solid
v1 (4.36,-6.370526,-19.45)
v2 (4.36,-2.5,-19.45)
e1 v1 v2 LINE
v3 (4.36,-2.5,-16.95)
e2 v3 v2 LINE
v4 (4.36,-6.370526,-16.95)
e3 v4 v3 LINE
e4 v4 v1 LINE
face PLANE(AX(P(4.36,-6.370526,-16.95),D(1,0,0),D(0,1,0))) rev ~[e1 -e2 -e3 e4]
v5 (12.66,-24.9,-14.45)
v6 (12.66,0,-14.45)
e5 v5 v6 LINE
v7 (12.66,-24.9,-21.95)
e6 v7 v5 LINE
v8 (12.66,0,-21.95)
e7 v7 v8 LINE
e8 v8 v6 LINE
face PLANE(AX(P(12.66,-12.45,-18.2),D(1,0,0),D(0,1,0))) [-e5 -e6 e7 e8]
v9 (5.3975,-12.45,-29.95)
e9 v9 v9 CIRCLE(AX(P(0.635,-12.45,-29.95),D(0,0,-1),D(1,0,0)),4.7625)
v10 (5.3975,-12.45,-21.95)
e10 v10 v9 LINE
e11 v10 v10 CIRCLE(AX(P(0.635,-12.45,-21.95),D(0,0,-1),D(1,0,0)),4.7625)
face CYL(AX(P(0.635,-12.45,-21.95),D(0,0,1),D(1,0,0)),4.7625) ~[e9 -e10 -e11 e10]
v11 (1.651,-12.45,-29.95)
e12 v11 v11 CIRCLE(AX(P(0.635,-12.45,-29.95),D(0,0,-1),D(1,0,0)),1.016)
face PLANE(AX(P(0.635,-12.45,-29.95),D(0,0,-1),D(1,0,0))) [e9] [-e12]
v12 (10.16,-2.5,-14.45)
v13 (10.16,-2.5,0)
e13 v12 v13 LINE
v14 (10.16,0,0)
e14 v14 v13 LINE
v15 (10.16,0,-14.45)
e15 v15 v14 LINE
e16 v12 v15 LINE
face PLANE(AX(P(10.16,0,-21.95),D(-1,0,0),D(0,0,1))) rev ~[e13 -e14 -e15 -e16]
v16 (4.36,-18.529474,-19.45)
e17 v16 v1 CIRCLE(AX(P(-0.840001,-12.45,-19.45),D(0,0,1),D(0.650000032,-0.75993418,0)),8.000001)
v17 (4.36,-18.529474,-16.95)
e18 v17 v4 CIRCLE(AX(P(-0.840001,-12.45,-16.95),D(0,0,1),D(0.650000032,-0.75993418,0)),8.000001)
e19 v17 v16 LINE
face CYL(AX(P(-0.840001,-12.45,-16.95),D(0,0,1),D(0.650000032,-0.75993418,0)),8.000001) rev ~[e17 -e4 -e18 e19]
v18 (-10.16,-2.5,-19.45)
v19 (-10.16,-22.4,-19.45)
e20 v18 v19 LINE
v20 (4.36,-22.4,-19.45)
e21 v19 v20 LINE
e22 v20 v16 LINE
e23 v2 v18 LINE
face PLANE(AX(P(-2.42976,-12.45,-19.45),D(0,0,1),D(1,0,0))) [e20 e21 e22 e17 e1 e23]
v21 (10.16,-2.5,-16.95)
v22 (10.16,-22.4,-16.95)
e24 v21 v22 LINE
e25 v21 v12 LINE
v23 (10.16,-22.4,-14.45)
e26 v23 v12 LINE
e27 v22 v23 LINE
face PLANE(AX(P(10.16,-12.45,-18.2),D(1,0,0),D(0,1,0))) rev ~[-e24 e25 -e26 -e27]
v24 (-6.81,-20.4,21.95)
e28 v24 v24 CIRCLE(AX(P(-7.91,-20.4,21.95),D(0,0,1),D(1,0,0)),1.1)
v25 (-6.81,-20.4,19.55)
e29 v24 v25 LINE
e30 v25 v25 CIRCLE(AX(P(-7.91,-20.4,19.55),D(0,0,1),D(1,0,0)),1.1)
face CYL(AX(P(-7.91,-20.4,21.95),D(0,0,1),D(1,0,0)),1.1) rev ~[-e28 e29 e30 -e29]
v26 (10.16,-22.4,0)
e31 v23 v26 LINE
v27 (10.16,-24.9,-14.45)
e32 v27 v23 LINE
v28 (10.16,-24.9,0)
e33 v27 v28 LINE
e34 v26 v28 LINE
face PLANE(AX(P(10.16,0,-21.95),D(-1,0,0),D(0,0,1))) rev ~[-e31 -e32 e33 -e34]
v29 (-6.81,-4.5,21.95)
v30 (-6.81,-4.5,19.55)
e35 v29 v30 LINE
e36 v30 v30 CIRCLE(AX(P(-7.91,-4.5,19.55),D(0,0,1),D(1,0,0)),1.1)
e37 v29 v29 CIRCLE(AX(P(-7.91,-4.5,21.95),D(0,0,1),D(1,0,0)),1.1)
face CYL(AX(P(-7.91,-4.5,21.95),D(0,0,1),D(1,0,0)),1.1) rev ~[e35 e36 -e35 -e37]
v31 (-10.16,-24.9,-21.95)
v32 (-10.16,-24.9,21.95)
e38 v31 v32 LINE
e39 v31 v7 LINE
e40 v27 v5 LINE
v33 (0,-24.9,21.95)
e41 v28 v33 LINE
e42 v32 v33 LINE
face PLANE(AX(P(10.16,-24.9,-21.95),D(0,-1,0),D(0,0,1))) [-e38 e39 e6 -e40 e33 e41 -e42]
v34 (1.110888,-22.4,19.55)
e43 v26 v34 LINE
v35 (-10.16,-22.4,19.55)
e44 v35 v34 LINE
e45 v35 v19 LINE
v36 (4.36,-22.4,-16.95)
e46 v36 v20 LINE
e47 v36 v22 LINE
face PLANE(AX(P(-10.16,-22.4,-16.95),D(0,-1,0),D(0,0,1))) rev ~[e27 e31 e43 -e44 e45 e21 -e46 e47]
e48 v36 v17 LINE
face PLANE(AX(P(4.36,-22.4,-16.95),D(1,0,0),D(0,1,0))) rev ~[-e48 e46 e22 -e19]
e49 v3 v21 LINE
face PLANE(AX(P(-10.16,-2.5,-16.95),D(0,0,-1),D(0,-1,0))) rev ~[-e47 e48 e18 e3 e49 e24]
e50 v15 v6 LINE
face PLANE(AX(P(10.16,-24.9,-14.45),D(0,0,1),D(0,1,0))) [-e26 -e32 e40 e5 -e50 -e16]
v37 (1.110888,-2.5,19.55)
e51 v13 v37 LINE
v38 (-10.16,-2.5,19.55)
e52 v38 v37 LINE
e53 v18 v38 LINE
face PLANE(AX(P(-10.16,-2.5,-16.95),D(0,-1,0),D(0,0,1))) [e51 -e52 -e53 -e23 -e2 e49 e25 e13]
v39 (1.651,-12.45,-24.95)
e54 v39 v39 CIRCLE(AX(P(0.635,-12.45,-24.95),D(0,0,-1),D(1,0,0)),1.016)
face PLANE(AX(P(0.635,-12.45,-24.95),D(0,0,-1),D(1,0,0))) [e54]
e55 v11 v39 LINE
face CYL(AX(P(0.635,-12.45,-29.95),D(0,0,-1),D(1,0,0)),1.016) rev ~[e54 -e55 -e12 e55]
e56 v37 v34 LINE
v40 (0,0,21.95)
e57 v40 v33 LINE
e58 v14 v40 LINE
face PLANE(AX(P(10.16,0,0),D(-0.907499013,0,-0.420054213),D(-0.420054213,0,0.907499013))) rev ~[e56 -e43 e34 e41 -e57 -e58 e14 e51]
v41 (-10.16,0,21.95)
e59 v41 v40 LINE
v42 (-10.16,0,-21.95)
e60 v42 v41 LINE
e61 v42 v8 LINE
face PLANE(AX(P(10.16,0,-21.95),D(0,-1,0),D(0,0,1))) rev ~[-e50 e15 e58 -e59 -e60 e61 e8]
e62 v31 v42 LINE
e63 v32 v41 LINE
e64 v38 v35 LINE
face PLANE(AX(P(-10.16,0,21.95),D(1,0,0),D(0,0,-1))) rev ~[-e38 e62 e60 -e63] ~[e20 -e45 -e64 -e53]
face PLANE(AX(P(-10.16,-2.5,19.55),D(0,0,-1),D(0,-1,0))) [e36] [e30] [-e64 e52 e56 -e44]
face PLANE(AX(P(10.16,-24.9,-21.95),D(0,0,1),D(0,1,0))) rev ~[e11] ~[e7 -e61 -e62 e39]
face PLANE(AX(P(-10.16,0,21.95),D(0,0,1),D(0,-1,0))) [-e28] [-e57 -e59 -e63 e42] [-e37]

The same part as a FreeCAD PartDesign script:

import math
import FreeCAD as App
import Part
import Sketcher
from FreeCAD import Vector
Q = App.Units.Quantity


def add_polygon(sketch, points):
    """Adds a closed chain of lines whose ends are joined by coincident constraints."""
    first, n = sketch.GeometryCount, len(points)
    for a, b in zip(points, points[1:] + points[:1]):
        sketch.addGeometry(Part.LineSegment(App.Vector(*a, 0), App.Vector(*b, 0)), False)
    for i in range(n):
        sketch.addConstraint(Sketcher.Constraint("Coincident", first + i, 2, first + (i + 1) % n, 1))

doc = App.newDocument("Part")
body = doc.addObject("PartDesign::Body", "Body")

sketch1 = body.newObject("Sketcher::SketchObject", "Sketch")
sketch1.AttachmentSupport = (doc.getObject("XZ_Plane"), [""])
sketch1.MapMode = "FlatFace"
add_polygon(sketch1, [(10, 0), (0, 22), (-10, 22), (-10, -22), (10, -22)])
sketch1.addConstraint([
    Sketcher.Constraint("Horizontal", 1),
    Sketcher.Constraint("Vertical", 2),
    Sketcher.Constraint("Horizontal", 3),
    Sketcher.Constraint("Vertical", 4),
    Sketcher.Constraint("Symmetric", 1, 2, 3, 2, -1, 1),
    Sketcher.Constraint("PointOnObject", 0, 2, -2),
    Sketcher.Constraint("PointOnObject", 4, 2, -1),
    Sketcher.Constraint("DistanceY", 2, 2, 2, 1, Q("43.9 mm")),
    Sketcher.Constraint("DistanceX", 1, 2, 1, 1, Q("10.16 mm")),
])
pad1 = body.newObject("PartDesign::Pad", "Pad")
pad1.Profile = sketch1
pad1.Length = 24.9

sketch2 = body.newObject("Sketcher::SketchObject", "Sketch001")
sketch2.AttachmentSupport = (doc.getObject("YZ_Plane"), [""])
sketch2.MapMode = "FlatFace"
sketch2.AttachmentOffset = App.Placement(Vector(0, 0, -10.16), App.Rotation())
add_polygon(sketch2, [(-2, 20), (-2, -17), (-22, -17), (-22, 20)])
sketch2.addConstraint([
    Sketcher.Constraint("Vertical", 0),
    Sketcher.Constraint("Horizontal", 1),
    Sketcher.Constraint("Vertical", 2),
    Sketcher.Constraint("Horizontal", 3),
    Sketcher.Constraint("DistanceX", 1, 2, 1, 1, Q("19.9 mm")),
    Sketcher.Constraint("DistanceY", 0, 2, 0, 1, Q("36.5 mm")),
    Sketcher.Constraint("DistanceX", 0, 2, -1, 1, Q("2.5 mm")),
    Sketcher.Constraint("DistanceY", 0, 2, -1, 1, Q("16.95 mm")),
])
pocket1 = body.newObject("PartDesign::Pocket", "Pocket")
pocket1.Profile = sketch2
pocket1.Length = 25.4
pocket1.Reversed = True

sketch3 = body.newObject("Sketcher::SketchObject", "Sketch002")
sketch3.AttachmentSupport = (doc.getObject("YZ_Plane"), [""])
sketch3.MapMode = "FlatFace"
sketch3.AttachmentOffset = App.Placement(Vector(0, 0, -10.16), App.Rotation())
add_polygon(sketch3, [(0, 22), (0, 17), (-25, 17), (-25, 22)])
add_polygon(sketch3, [(0, -14), (0, -22), (-25, -22), (-25, -14)])
sketch3.addConstraint([
    Sketcher.Constraint("Vertical", 0),
    Sketcher.Constraint("Horizontal", 1),
    Sketcher.Constraint("Vertical", 2),
    Sketcher.Constraint("Horizontal", 3),
    Sketcher.Constraint("Vertical", 4),
    Sketcher.Constraint("Horizontal", 5),
    Sketcher.Constraint("Vertical", 6),
    Sketcher.Constraint("Horizontal", 7),
    Sketcher.Constraint("Symmetric", 3, 2, 4, 2, -1, 1),
    Sketcher.Constraint("PointOnObject", 0, 2, -2),
    Sketcher.Constraint("Vertical", 2, 2, 5, 2),
    Sketcher.Constraint("DistanceY", 0, 2, 0, 1, Q("5 mm")),
    Sketcher.Constraint("DistanceX", 1, 2, 1, 1, Q("24.9 mm")),
    Sketcher.Constraint("DistanceY", 4, 2, 4, 1, Q("7.5 mm")),
    Sketcher.Constraint("DistanceY", 4, 2, 0, 2, Q("38.9 mm")),
])
pad2 = body.newObject("PartDesign::Pad", "Pad001")
pad2.Profile = sketch3
pad2.Length = 2.5
pad2.Reversed = True

sketch4 = body.newObject("Sketcher::SketchObject", "Sketch003")
sketch4.AttachmentSupport = (doc.getObject("XY_Plane"), [""])
sketch4.MapMode = "FlatFace"
sketch4.AttachmentOffset = App.Placement(Vector(0, 0, -16.95), App.Rotation())
sketch4.addGeometry([
    Part.LineSegment(Vector(4.4, -6.4, 0), Vector(4.4, -2.5, 0)),
    Part.LineSegment(Vector(4.4, -2.5, 0), Vector(-10.2, -2.5, 0)),
    Part.LineSegment(Vector(-10.2, -2.5, 0), Vector(-10.2, -22.4, 0)),
    Part.LineSegment(Vector(-10.2, -22.4, 0), Vector(4.4, -22.4, 0)),
    Part.LineSegment(Vector(4.4, -22.4, 0), Vector(4.4, -18.5, 0)),
    Part.ArcOfCircle(Part.Circle(Vector(-0.8, -12.4, 0), Vector(0, 0, 1), 8), math.radians(-49), math.radians(49)),
], False)
sketch4.addConstraint([
    Sketcher.Constraint("Coincident", 0, 2, 1, 1),
    Sketcher.Constraint("Coincident", 1, 2, 2, 1),
    Sketcher.Constraint("Coincident", 2, 2, 3, 1),
    Sketcher.Constraint("Coincident", 3, 2, 4, 1),
    Sketcher.Constraint("Coincident", 4, 2, 5, 1),
    Sketcher.Constraint("Coincident", 5, 2, 0, 1),
    Sketcher.Constraint("Vertical", 0),
    Sketcher.Constraint("Horizontal", 1),
    Sketcher.Constraint("Vertical", 2),
    Sketcher.Constraint("Horizontal", 3),
    Sketcher.Constraint("Vertical", 4),
    Sketcher.Constraint("Vertical", 0, 2, 3, 2),
    Sketcher.Constraint("Equal", 0, 4),
    Sketcher.Constraint("Radius", 5, Q("8.000001 mm")),
    Sketcher.Constraint("DistanceY", 2, 2, 2, 1, Q("19.9 mm")),
    Sketcher.Constraint("DistanceX", 1, 2, 1, 1, Q("14.52 mm")),
    Sketcher.Constraint("DistanceY", 0, 2, -1, 1, Q("2.5 mm")),
    Sketcher.Constraint("DistanceX", 5, 3, 0, 2, Q("5.200001 mm")),
    Sketcher.Constraint("DistanceX", 5, 3, -1, 1, Q("0.840001 mm")),
])
pocket2 = body.newObject("PartDesign::Pocket", "Pocket001")
pocket2.Profile = sketch4
pocket2.Length = 2.5

sketch5 = body.newObject("Sketcher::SketchObject", "Sketch004")
sketch5.AttachmentSupport = (doc.getObject("XY_Plane"), [""])
sketch5.MapMode = "FlatFace"
sketch5.AttachmentOffset = App.Placement(Vector(0, 0, 21.95), App.Rotation())
sketch5.addGeometry([
    Part.Circle(Vector(-7.9, -4.5, 0), Vector(0, 0, 1), 1.1),
    Part.Circle(Vector(-7.9, -20.4, 0), Vector(0, 0, 1), 1.1),
], False)
sketch5.addConstraint([
    Sketcher.Constraint("Equal", 0, 1),
    Sketcher.Constraint("Vertical", 0, 3, 1, 3),
    Sketcher.Constraint("Diameter", 0, Q("2.2 mm")),
    Sketcher.Constraint("DistanceY", 0, 3, -1, 1, Q("4.5 mm")),
    Sketcher.Constraint("DistanceY", 1, 3, -1, 1, Q("20.4 mm")),
    Sketcher.Constraint("DistanceX", 0, 3, -1, 1, Q("7.91 mm")),
])
pocket3 = body.newObject("PartDesign::Pocket", "Pocket002")
pocket3.Profile = sketch5
pocket3.Length = 25.4

sketch6 = body.newObject("Sketcher::SketchObject", "Sketch005")
sketch6.AttachmentSupport = (doc.getObject("XY_Plane"), [""])
sketch6.MapMode = "FlatFace"
sketch6.AttachmentOffset = App.Placement(Vector(0, 0, -21.95), App.Rotation())
sketch6.addGeometry(Part.Circle(Vector(0.6, -12.4, 0), Vector(0, 0, 1), 4.8), False)
sketch6.addConstraint([
    Sketcher.Constraint("Diameter", 0, Q("9.525 mm")),
    Sketcher.Constraint("DistanceY", 0, 3, -1, 1, Q("12.45 mm")),
    Sketcher.Constraint("DistanceX", -1, 1, 0, 3, Q("0.635 mm")),
])
pad3 = body.newObject("PartDesign::Pad", "Pad002")
pad3.Profile = sketch6
pad3.Length = 8
pad3.Reversed = True

sketch7 = body.newObject("Sketcher::SketchObject", "Sketch006")
sketch7.AttachmentSupport = (doc.getObject("XY_Plane"), [""])
sketch7.MapMode = "FlatFace"
sketch7.AttachmentOffset = App.Placement(Vector(0, 0, -29.95), App.Rotation())
sketch7.addGeometry(Part.Circle(Vector(0.6, -12.4, 0), Vector(0, 0, 1), 1), False)
sketch7.addConstraint([
    Sketcher.Constraint("Diameter", 0, Q("2.032 mm")),
    Sketcher.Constraint("DistanceY", 0, 3, -1, 1, Q("12.45 mm")),
    Sketcher.Constraint("DistanceX", -1, 1, 0, 3, Q("0.635 mm")),
])
pocket4 = body.newObject("PartDesign::Pocket", "Pocket003")
pocket4.Profile = sketch7
pocket4.Length = 5
pocket4.Reversed = True

sketch8 = body.newObject("Sketcher::SketchObject", "Sketch007")
sketch8.AttachmentSupport = (doc.getObject("XZ_Plane"), [""])
sketch8.MapMode = "FlatFace"
sketch8.AttachmentOffset = App.Placement(Vector(0, 0, 24.9), App.Rotation())
add_polygon(sketch8, [(-12.7, -14.4), (-12.7, -21.9), (-10.2, -21.9), (-10.2, -14.4)])
add_polygon(sketch8, [(-12.7, 21.9), (-12.7, 16.9), (-10.2, 16.9), (-10.2, 21.9)])
sketch8.addConstraint([
    Sketcher.Constraint("Vertical", 0),
    Sketcher.Constraint("Horizontal", 1),
    Sketcher.Constraint("Vertical", 2),
    Sketcher.Constraint("Horizontal", 3),
    Sketcher.Constraint("Vertical", 4),
    Sketcher.Constraint("Horizontal", 5),
    Sketcher.Constraint("Vertical", 6),
    Sketcher.Constraint("Horizontal", 7),
    Sketcher.Constraint("Symmetric", 1, 2, 6, 2, -1),
    Sketcher.Constraint("Vertical", 3, 2, 4, 2),
    Sketcher.Constraint("DistanceY", 4, 2, 4, 1, Q("5 mm")),
    Sketcher.Constraint("DistanceX", 1, 1, 1, 2, Q("2.5 mm")),
    Sketcher.Constraint("DistanceY", 0, 2, 0, 1, Q("7.5 mm")),
    Sketcher.Constraint("DistanceY", 3, 2, 4, 2, Q("31.4 mm")),
    Sketcher.Constraint("DistanceX", 0, 2, -1, 1, Q("12.66 mm")),
])
pocket5 = body.newObject("PartDesign::Pocket", "Pocket004")
pocket5.Profile = sketch8
pocket5.Length = 25.4

sketch9 = body.newObject("Sketcher::SketchObject", "Sketch008")
sketch9.AttachmentSupport = (doc.getObject("YZ_Plane"), [""])
sketch9.MapMode = "FlatFace"
sketch9.AttachmentOffset = App.Placement(Vector(0, 0, 10.16), App.Rotation())
add_polygon(sketch9, [(-25, -14), (-25, -22), (0, -22), (0, -14)])
sketch9.addConstraint([
    Sketcher.Constraint("Vertical", 0),
    Sketcher.Constraint("Horizontal", 1),
    Sketcher.Constraint("Vertical", 2),
    Sketcher.Constraint("Horizontal", 3),
    Sketcher.Constraint("PointOnObject", 1, 2, -2),
    Sketcher.Constraint("DistanceX", 1, 1, 1, 2, Q("24.9 mm")),
    Sketcher.Constraint("DistanceY", 0, 2, 0, 1, Q("7.5 mm")),
    Sketcher.Constraint("DistanceY", 0, 2, -1, 1, Q("21.95 mm")),
])
pad4 = body.newObject("PartDesign::Pad", "Pad003")
pad4.Profile = sketch9
pad4.Length = 2.5

doc.recompute()
